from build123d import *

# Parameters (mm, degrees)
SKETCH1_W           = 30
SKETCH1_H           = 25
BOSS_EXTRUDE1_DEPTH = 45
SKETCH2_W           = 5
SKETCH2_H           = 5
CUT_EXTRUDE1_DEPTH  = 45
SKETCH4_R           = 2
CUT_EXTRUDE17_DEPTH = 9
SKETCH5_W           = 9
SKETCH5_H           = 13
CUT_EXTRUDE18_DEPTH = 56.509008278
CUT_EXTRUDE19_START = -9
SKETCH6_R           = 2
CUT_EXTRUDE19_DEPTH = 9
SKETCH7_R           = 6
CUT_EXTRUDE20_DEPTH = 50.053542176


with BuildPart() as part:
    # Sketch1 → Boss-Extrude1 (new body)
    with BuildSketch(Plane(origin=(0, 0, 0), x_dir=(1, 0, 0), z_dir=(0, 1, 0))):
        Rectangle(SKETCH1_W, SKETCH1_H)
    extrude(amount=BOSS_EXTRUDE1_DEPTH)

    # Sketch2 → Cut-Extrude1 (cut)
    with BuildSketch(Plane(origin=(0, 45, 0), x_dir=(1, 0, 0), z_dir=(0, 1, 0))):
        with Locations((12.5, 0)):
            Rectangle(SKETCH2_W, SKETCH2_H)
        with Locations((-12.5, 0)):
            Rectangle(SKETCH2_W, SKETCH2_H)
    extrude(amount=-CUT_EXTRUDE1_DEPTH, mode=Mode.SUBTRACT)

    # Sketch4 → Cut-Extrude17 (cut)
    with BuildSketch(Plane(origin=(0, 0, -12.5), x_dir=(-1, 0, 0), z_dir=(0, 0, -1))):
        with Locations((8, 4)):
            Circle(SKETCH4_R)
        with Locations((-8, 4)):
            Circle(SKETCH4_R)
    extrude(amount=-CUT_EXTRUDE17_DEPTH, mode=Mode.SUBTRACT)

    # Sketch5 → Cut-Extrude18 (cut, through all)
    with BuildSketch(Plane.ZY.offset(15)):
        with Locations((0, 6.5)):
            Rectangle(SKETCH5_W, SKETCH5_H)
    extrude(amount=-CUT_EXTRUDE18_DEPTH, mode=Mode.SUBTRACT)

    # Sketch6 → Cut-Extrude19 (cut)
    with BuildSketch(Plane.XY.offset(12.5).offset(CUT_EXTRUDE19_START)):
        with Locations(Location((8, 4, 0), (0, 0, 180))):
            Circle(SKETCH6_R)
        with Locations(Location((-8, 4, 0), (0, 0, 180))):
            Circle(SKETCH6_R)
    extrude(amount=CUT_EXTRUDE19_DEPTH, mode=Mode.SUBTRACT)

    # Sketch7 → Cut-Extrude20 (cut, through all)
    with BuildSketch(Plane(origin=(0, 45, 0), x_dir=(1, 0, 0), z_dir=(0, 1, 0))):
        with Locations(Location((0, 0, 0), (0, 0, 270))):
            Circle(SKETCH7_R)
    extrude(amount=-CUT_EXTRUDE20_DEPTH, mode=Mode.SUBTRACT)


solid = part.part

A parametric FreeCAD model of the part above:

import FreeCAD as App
import Part
import Sketcher
Q = App.Units.Quantity


def add_polygon(sketch, points):
    """Adds a closed chain of lines whose ends are joined by coincident constraints."""
    first, n = sketch.GeometryCount, len(points)
    for a, b in zip(points, points[1:] + points[:1]):
        sketch.addGeometry(Part.LineSegment(App.Vector(*a, 0), App.Vector(*b, 0)), False)
    for i in range(n):
        sketch.addConstraint(Sketcher.Constraint("Coincident", first + i, 2, first + (i + 1) % n, 1))

doc = App.newDocument("Part")
body = doc.addObject("PartDesign::Body", "Body")

sketch1 = body.newObject("Sketcher::SketchObject", "Sketch")
sketch1.AttachmentSupport = (doc.getObject("XZ_Plane"), [""])
sketch1.MapMode = "FlatFace"
add_polygon(sketch1, [(-15, -12), (-15, 12), (15, 12), (15, -12)])
sketch1.addConstraint(Sketcher.Constraint("Vertical", 0))
sketch1.addConstraint(Sketcher.Constraint("Horizontal", 1))
sketch1.addConstraint(Sketcher.Constraint("Vertical", 2))
sketch1.addConstraint(Sketcher.Constraint("Horizontal", 3))
sketch1.addConstraint(Sketcher.Constraint("Symmetric", 0, 2, 2, 2, -1, 1))
sketch1.addConstraint(Sketcher.Constraint("DistanceX", 1, 1, 1, 2, Q("30 mm")))
sketch1.addConstraint(Sketcher.Constraint("DistanceY", 0, 1, 0, 2, Q("25 mm")))
pad1 = body.newObject("PartDesign::Pad", "Pad")
pad1.Profile = sketch1
pad1.Length = 45
pad1.Reversed = True

sketch2 = body.newObject("Sketcher::SketchObject", "Sketch001")
sketch2.AttachmentSupport = (doc.getObject("XZ_Plane"), [""])
sketch2.MapMode = "FlatFace"
sketch2.AttachmentOffset = App.Placement(App.Vector(0, 0, -45), App.Rotation())
add_polygon(sketch2, [(10, -2), (10, 2), (15, 2), (15, -2)])
add_polygon(sketch2, [(-15, -2), (-15, 2), (-10, 2), (-10, -2)])
sketch2.addConstraint(Sketcher.Constraint("Vertical", 0))
sketch2.addConstraint(Sketcher.Constraint("Horizontal", 1))
sketch2.addConstraint(Sketcher.Constraint("Vertical", 2))
sketch2.addConstraint(Sketcher.Constraint("Horizontal", 3))
sketch2.addConstraint(Sketcher.Constraint("Vertical", 4))
sketch2.addConstraint(Sketcher.Constraint("Horizontal", 5))
sketch2.addConstraint(Sketcher.Constraint("Vertical", 6))
sketch2.addConstraint(Sketcher.Constraint("Horizontal", 7))
sketch2.addConstraint(Sketcher.Constraint("Symmetric", 2, 2, 4, 2, -1, 1))
sketch2.addConstraint(Sketcher.Constraint("Symmetric", 0, 2, 6, 2, -1, 1))
sketch2.addConstraint(Sketcher.Constraint("Horizontal", 1, 2, 4, 2))
sketch2.addConstraint(Sketcher.Constraint("Equal", 7, 0))
sketch2.addConstraint(Sketcher.Constraint("DistanceX", 1, 1, 1, 2, Q("5 mm")))
sketch2.addConstraint(Sketcher.Constraint("DistanceX", -1, 1, 0, 2, Q("10 mm")))
pocket1 = body.newObject("PartDesign::Pocket", "Pocket")
pocket1.Profile = sketch2
pocket1.Length = 45
pocket1.Reversed = True

sketch3 = body.newObject("Sketcher::SketchObject", "Sketch002")
sketch3.AttachmentSupport = (doc.getObject("XY_Plane"), [""])
sketch3.MapMode = "FlatFace"
sketch3.AttachmentOffset = App.Placement(App.Vector(0, 0, -12.5), App.Rotation())
sketch3.addGeometry(Part.Circle(App.Vector(-8, 4, 0), App.Vector(0, 0, 1), 2), False)
sketch3.addGeometry(Part.Circle(App.Vector(8, 4, 0), App.Vector(0, 0, 1), 2), False)
sketch3.addConstraint(Sketcher.Constraint("Equal", 0, 1))
sketch3.addConstraint(Sketcher.Constraint("Symmetric", 0, 3, 1, 3, -2))
sketch3.addConstraint(Sketcher.Constraint("Diameter", 0, Q("4 mm")))
sketch3.addConstraint(Sketcher.Constraint("DistanceX", 0, 3, -1, 1, Q("8 mm")))
sketch3.addConstraint(Sketcher.Constraint("DistanceY", -1, 1, 0, 3, Q("4 mm")))
pocket2 = body.newObject("PartDesign::Pocket", "Pocket001")
pocket2.Profile = sketch3
pocket2.Length = 9
pocket2.Reversed = True

sketch4 = body.newObject("Sketcher::SketchObject", "Sketch003")
sketch4.AttachmentSupport = (doc.getObject("YZ_Plane"), [""])
sketch4.MapMode = "FlatFace"
sketch4.AttachmentOffset = App.Placement(App.Vector(0, 0, -15), App.Rotation())
add_polygon(sketch4, [(13, -4), (0, -4), (0, 4), (13, 4)])
sketch4.addConstraint(Sketcher.Constraint("Horizontal", 0))
sketch4.addConstraint(Sketcher.Constraint("Vertical", 1))
sketch4.addConstraint(Sketcher.Constraint("Horizontal", 2))
sketch4.addConstraint(Sketcher.Constraint("Vertical", 3))
sketch4.addConstraint(Sketcher.Constraint("Symmetric", 0, 2, 1, 2, -1, 1))
sketch4.addConstraint(Sketcher.Constraint("DistanceX", 0, 2, 0, 1, Q("13 mm")))
sketch4.addConstraint(Sketcher.Constraint("DistanceY", 1, 1, 1, 2, Q("9 mm")))
pocket3 = body.newObject("PartDesign::Pocket", "Pocket002")
pocket3.Profile = sketch4
pocket3.Type = "ThroughAll"
pocket3.Reversed = True

sketch5 = body.newObject("Sketcher::SketchObject", "Sketch004")
sketch5.AttachmentSupport = (doc.getObject("XY_Plane"), [""])
sketch5.MapMode = "FlatFace"
sketch5.AttachmentOffset = App.Placement(App.Vector(0, 0, 3.5), App.Rotation())
sketch5.addGeometry(Part.Circle(App.Vector(8, 4, 0), App.Vector(0, 0, 1), 2), False)
sketch5.addGeometry(Part.Circle(App.Vector(-8, 4, 0), App.Vector(0, 0, 1), 2), False)
sketch5.addConstraint(Sketcher.Constraint("Equal", 0, 1))
sketch5.addConstraint(Sketcher.Constraint("Symmetric", 0, 3, 1, 3, -2))
sketch5.addConstraint(Sketcher.Constraint("Diameter", 0, Q("4 mm")))
sketch5.addConstraint(Sketcher.Constraint("DistanceX", -1, 1, 0, 3, Q("8 mm")))
sketch5.addConstraint(Sketcher.Constraint("DistanceY", -1, 1, 0, 3, Q("4 mm")))
pocket4 = body.newObject("PartDesign::Pocket", "Pocket003")
pocket4.Profile = sketch5
pocket4.Length = 9
pocket4.Reversed = True

sketch6 = body.newObject("Sketcher::SketchObject", "Sketch005")
sketch6.AttachmentSupport = (doc.getObject("XZ_Plane"), [""])
sketch6.MapMode = "FlatFace"
sketch6.AttachmentOffset = App.Placement(App.Vector(0, 0, -45), App.Rotation())
sketch6.addGeometry(Part.Circle(App.Vector(0, 0, 0), App.Vector(0, 0, 1), 6), False)
sketch6.addConstraint(Sketcher.Constraint("Coincident", 0, 3, -1, 1))
sketch6.addConstraint(Sketcher.Constraint("Diameter", 0, Q("12 mm")))
pocket5 = body.newObject("PartDesign::Pocket", "Pocket004")
pocket5.Profile = sketch6
pocket5.Type = "ThroughAll"
pocket5.Reversed = True

doc.recompute()
